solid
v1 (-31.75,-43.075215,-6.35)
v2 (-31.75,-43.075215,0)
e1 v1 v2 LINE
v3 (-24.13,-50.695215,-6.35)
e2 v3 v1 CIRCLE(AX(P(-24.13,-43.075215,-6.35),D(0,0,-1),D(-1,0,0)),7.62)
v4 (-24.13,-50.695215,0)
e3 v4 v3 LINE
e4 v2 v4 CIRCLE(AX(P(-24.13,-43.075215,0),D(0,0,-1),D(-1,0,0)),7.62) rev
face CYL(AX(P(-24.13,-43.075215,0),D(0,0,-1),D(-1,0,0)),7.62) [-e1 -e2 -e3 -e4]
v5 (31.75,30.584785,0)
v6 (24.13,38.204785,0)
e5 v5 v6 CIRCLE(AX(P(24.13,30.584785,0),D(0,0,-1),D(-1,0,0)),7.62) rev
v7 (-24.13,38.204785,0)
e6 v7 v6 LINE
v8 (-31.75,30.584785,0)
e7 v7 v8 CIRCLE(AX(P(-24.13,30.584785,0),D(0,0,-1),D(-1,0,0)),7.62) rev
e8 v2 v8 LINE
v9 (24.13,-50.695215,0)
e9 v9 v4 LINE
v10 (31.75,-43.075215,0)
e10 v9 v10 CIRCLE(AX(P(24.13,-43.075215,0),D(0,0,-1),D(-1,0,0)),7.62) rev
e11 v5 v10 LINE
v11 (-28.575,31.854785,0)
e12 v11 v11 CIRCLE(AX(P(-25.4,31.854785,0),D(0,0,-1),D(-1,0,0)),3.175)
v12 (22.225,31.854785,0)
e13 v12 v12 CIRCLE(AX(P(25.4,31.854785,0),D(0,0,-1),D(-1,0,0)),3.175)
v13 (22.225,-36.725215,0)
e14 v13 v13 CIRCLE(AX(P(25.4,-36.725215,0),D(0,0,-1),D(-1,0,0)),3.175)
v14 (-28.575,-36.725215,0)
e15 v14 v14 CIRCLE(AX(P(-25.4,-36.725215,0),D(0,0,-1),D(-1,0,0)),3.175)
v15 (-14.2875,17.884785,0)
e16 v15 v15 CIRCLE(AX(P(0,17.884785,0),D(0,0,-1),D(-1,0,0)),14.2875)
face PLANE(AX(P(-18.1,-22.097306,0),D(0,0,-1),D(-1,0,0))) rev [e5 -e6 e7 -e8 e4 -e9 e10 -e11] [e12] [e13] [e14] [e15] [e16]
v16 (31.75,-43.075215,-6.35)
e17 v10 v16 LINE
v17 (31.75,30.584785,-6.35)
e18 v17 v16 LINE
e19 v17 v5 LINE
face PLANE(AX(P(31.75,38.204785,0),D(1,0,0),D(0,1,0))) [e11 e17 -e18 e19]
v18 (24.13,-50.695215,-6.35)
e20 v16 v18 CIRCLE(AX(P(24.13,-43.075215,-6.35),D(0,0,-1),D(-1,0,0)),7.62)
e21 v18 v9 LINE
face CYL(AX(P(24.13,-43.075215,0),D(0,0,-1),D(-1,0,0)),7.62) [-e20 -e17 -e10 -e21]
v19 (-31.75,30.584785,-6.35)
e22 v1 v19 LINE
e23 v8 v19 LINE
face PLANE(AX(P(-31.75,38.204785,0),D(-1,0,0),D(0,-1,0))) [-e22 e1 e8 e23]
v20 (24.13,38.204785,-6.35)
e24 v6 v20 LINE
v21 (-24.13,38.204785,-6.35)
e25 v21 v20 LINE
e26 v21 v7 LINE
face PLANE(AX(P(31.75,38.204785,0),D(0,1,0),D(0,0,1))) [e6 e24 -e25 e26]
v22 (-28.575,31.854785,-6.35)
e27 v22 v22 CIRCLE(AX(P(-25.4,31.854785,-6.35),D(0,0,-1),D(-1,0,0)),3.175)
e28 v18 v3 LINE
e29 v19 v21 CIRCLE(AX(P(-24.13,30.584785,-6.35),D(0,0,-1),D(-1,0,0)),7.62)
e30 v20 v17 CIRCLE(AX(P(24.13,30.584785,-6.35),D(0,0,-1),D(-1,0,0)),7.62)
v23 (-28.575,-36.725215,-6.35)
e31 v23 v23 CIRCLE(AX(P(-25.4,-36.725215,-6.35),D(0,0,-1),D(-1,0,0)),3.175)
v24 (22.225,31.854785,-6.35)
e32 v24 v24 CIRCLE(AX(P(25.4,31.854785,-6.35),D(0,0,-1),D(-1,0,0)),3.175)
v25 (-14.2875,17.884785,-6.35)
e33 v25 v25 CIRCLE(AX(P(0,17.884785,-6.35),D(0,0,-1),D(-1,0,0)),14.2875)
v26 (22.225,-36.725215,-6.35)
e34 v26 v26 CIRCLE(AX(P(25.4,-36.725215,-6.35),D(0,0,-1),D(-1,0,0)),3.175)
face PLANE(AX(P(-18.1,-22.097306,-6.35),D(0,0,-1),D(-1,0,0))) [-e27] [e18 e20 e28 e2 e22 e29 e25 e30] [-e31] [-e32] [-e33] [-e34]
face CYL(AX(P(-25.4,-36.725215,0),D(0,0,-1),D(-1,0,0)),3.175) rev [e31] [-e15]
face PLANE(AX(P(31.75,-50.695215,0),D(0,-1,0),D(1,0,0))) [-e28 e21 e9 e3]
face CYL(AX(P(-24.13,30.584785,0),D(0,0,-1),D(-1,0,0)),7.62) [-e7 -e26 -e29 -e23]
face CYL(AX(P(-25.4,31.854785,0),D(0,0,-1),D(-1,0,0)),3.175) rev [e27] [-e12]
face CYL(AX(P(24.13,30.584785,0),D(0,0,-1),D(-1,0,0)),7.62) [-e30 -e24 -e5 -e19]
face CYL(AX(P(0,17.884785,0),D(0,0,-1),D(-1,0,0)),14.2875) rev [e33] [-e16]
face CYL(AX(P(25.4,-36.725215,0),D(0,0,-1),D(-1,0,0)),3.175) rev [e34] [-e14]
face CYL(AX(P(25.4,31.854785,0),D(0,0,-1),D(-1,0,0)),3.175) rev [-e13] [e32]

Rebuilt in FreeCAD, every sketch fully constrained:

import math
import FreeCAD as App
import Part
import Sketcher
Q = App.Units.Quantity


def edges_at(feature, points):
    """Names of the edges that pass closest to the given points."""
    edges = feature.Shape.Edges
    near = lambda p: min(range(len(edges)), key=lambda i: edges[i].distToShape(Part.Vertex(*p))[0])
    return sorted({f"Edge{near(p) + 1}" for p in points})


def add_polygon(sketch, points):
    """Adds a closed chain of lines whose ends are joined by coincident constraints."""
    first, n = sketch.GeometryCount, len(points)
    for a, b in zip(points, points[1:] + points[:1]):
        sketch.addGeometry(Part.LineSegment(App.Vector(*a, 0), App.Vector(*b, 0)), False)
    for i in range(n):
        sketch.addConstraint(Sketcher.Constraint("Coincident", first + i, 2, first + (i + 1) % n, 1))

doc = App.newDocument("Part")
body = doc.addObject("PartDesign::Body", "Body")

# Sketch on XY plane
sketch1 = body.newObject("Sketcher::SketchObject", "Sketch")
sketch1.AttachmentSupport = (doc.getObject("XY_Plane"), [""])
sketch1.MapMode = "FlatFace"
sketch1.addGeometry(Part.LineSegment(App.Vector(-14.9, 29.8, 0), App.Vector(-19.7, 23.3, 0)), False)
sketch1.addGeometry(Part.ArcOfCircle(Part.Circle(App.Vector(-18.1, 22.1, 0), App.Vector(0, 0, 1), 2), math.radians(143), math.radians(180)), False)
sketch1.addGeometry(Part.LineSegment(App.Vector(-20.1, 22.1, 0), App.Vector(-20.1, -22.1, 0)), False)
sketch1.addGeometry(Part.ArcOfCircle(Part.Circle(App.Vector(-18.1, -22.1, 0), App.Vector(0, 0, 1), 2), math.radians(-180), math.radians(-143)), False)
sketch1.addGeometry(Part.LineSegment(App.Vector(-19.7, -23.3, 0), App.Vector(-14.9, -29.8, 0)), False)
sketch1.addGeometry(Part.ArcOfCircle(Part.Circle(App.Vector(-13.3, -28.5, 0), App.Vector(0, 0, 1), 2), math.radians(-143), math.radians(-90)), False)
sketch1.addGeometry(Part.LineSegment(App.Vector(-13.3, -30.6, 0), App.Vector(13.3, -30.6, 0)), False)
sketch1.addGeometry(Part.ArcOfCircle(Part.Circle(App.Vector(13.3, -28.5, 0), App.Vector(0, 0, 1), 2), math.radians(-90), math.radians(-37)), False)
sketch1.addGeometry(Part.LineSegment(App.Vector(14.9, -29.8, 0), App.Vector(19.7, -23.3, 0)), False)
sketch1.addGeometry(Part.ArcOfCircle(Part.Circle(App.Vector(18.1, -22.1, 0), App.Vector(0, 0, 1), 2), math.radians(-37), math.radians(0)), False)
sketch1.addGeometry(Part.LineSegment(App.Vector(20.1, -22.1, 0), App.Vector(20.1, 22.1, 0)), False)
sketch1.addGeometry(Part.ArcOfCircle(Part.Circle(App.Vector(18.1, 22.1, 0), App.Vector(0, 0, 1), 2), math.radians(0), math.radians(37)), False)
sketch1.addGeometry(Part.LineSegment(App.Vector(19.7, 23.3, 0), App.Vector(14.9, 29.8, 0)), False)
sketch1.addGeometry(Part.ArcOfCircle(Part.Circle(App.Vector(13.3, 28.5, 0), App.Vector(0, 0, 1), 2), math.radians(37), math.radians(90)), False)
sketch1.addGeometry(Part.LineSegment(App.Vector(13.3, 30.6, 0), App.Vector(-13.3, 30.6, 0)), False)
sketch1.addGeometry(Part.ArcOfCircle(Part.Circle(App.Vector(-13.3, 28.5, 0), App.Vector(0, 0, 1), 2), math.radians(90), math.radians(143)), False)
sketch1.addConstraint(Sketcher.Constraint("Tangent", 0, 2, 1, 1))
sketch1.addConstraint(Sketcher.Constraint("Tangent", 1, 2, 2, 1))
sketch1.addConstraint(Sketcher.Constraint("Tangent", 2, 2, 3, 1))
sketch1.addConstraint(Sketcher.Constraint("Tangent", 3, 2, 4, 1))
sketch1.addConstraint(Sketcher.Constraint("Tangent", 4, 2, 5, 1))
sketch1.addConstraint(Sketcher.Constraint("Tangent", 5, 2, 6, 1))
sketch1.addConstraint(Sketcher.Constraint("Tangent", 6, 2, 7, 1))
sketch1.addConstraint(Sketcher.Constraint("Tangent", 7, 2, 8, 1))
sketch1.addConstraint(Sketcher.Constraint("Tangent", 8, 2, 9, 1))
sketch1.addConstraint(Sketcher.Constraint("Tangent", 9, 2, 10, 1))
sketch1.addConstraint(Sketcher.Constraint("Tangent", 10, 2, 11, 1))
sketch1.addConstraint(Sketcher.Constraint("Tangent", 11, 2, 12, 1))
sketch1.addConstraint(Sketcher.Constraint("Tangent", 12, 2, 13, 1))
sketch1.addConstraint(Sketcher.Constraint("Tangent", 13, 2, 14, 1))
sketch1.addConstraint(Sketcher.Constraint("Tangent", 14, 2, 15, 1))
sketch1.addConstraint(Sketcher.Constraint("Tangent", 15, 2, 0, 1))
sketch1.addConstraint(Sketcher.Constraint("Vertical", 2))
sketch1.addConstraint(Sketcher.Constraint("Horizontal", 6))
sketch1.addConstraint(Sketcher.Constraint("Vertical", 10))
sketch1.addConstraint(Sketcher.Constraint("Horizontal", 14))
sketch1.addConstraint(Sketcher.Constraint("Equal", 1, 3))
sketch1.addConstraint(Sketcher.Constraint("Equal", 3, 5))
sketch1.addConstraint(Sketcher.Constraint("Equal", 5, 7))
sketch1.addConstraint(Sketcher.Constraint("Equal", 7, 9))
sketch1.addConstraint(Sketcher.Constraint("Equal", 9, 11))
sketch1.addConstraint(Sketcher.Constraint("Equal", 11, 13))
sketch1.addConstraint(Sketcher.Constraint("Equal", 13, 15))
sketch1.addConstraint(Sketcher.Constraint("Symmetric", 1, 3, 9, 3, -1, 1))
sketch1.addConstraint(Sketcher.Constraint("Symmetric", 5, 3, 13, 3, -1, 1))
sketch1.addConstraint(Sketcher.Constraint("Symmetric", 4, 2, 7, 2, -2))
sketch1.addConstraint(Sketcher.Constraint("Symmetric", 0, 2, 11, 2, -2))
sketch1.addConstraint(Sketcher.Constraint("Radius", 1, 2.0))
sketch1.addConstraint(Sketcher.Constraint("DistanceX", 6, 1, 6, 2, 26.50231))
sketch1.addConstraint(Sketcher.Constraint("DistanceX", 1, 3, -1, 1, 18.1))
sketch1.addConstraint(Sketcher.Constraint("DistanceY", 5, 3, -1, 1, 28.55))
sketch1.addConstraint(Sketcher.Constraint("DistanceX", 4, 2, 7, 3, 28.1012))
pad1 = body.newObject("PartDesign::Pad", "Pad")
pad1.Profile = sketch1
pad1.Length = Q("0.25 in")
pad1.Reversed = True

# Sketch on XY plane
sketch2 = body.newObject("Sketcher::SketchObject", "Sketch001")
sketch2.AttachmentSupport = (doc.getObject("XY_Plane"), [""])
sketch2.MapMode = "FlatFace"
sketch2.AttachmentOffset = App.Placement(App.Vector(0, 0, -0.25 * 25.4), App.Rotation())
sketch2.addGeometry(Part.Circle(App.Vector(-17.3, 21.9, 0), App.Vector(0, 0, 1), 1.4), False)
sketch2.addGeometry(Part.Circle(App.Vector(-17.3, -0.1, 0), App.Vector(0, 0, 1), 1.4), False)
sketch2.addGeometry(Part.Circle(App.Vector(-17.3, -22.1, 0), App.Vector(0, 0, 1), 1.4), False)
sketch2.addGeometry(Part.Circle(App.Vector(-11, -27.8, 0), App.Vector(0, 0, 1), 1.4), False)
sketch2.addGeometry(Part.Circle(App.Vector(11, -27.8, 0), App.Vector(0, 0, 1), 1.4), False)
sketch2.addGeometry(Part.Circle(App.Vector(17.3, -22.1, 0), App.Vector(0, 0, 1), 1.4), False)
sketch2.addGeometry(Part.Circle(App.Vector(17.3, -0.1, 0), App.Vector(0, 0, 1), 1.4), False)
sketch2.addGeometry(Part.Circle(App.Vector(17.3, 21.9, 0), App.Vector(0, 0, 1), 1.4), False)
sketch2.addConstraint(Sketcher.Constraint("Equal", 0, 1))
sketch2.addConstraint(Sketcher.Constraint("Equal", 1, 2))
sketch2.addConstraint(Sketcher.Constraint("Equal", 3, 4))
sketch2.addConstraint(Sketcher.Constraint("Equal", 2, 5))
sketch2.addConstraint(Sketcher.Constraint("Equal", 5, 6))
sketch2.addConstraint(Sketcher.Constraint("Equal", 6, 7))
sketch2.addConstraint(Sketcher.Constraint("Symmetric", 3, 3, 4, 3, -2))
sketch2.addConstraint(Sketcher.Constraint("Symmetric", 2, 3, 5, 3, -2))
sketch2.addConstraint(Sketcher.Constraint("Symmetric", 1, 3, 6, 3, -2))
sketch2.addConstraint(Sketcher.Constraint("Symmetric", 0, 3, 7, 3, -2))
sketch2.addConstraint(Sketcher.Constraint("Vertical", 0, 3, 1, 3))
sketch2.addConstraint(Sketcher.Constraint("Vertical", 1, 3, 2, 3))
sketch2.addConstraint(Sketcher.Constraint("Diameter", 0, 2.7))
sketch2.addConstraint(Sketcher.Constraint("Diameter", 3, 2.77))
sketch2.addConstraint(Sketcher.Constraint("DistanceX", 0, 3, -1, 1, 17.3))
sketch2.addConstraint(Sketcher.Constraint("DistanceX", 3, 3, -1, 1, 11.0))
sketch2.addConstraint(Sketcher.Constraint("DistanceY", 3, 3, -1, 1, 27.75))
sketch2.addConstraint(Sketcher.Constraint("DistanceY", 1, 3, 0, 3, 22.0))
sketch2.addConstraint(Sketcher.Constraint("DistanceY", 2, 3, 1, 3, 22.0))
sketch2.addConstraint(Sketcher.Constraint("DistanceY", -1, 1, 0, 3, 21.948784))
pocket1 = body.newObject("PartDesign::Pocket", "Pocket")
pocket1.Profile = sketch2
pocket1.Type = "ThroughAll"
pocket1.Reversed = True

# Sketch on XY plane
sketch3 = body.newObject("Sketcher::SketchObject", "Sketch002")
sketch3.AttachmentSupport = (doc.getObject("XY_Plane"), [""])
sketch3.MapMode = "FlatFace"
sketch3.AttachmentOffset = App.Placement(App.Vector(0, 0, -0.25 * 25.4), App.Rotation())
add_polygon(sketch3, [(32, 38), (32, -51), (-32, -51), (-32, 38)])  # lines 0-3
add_polygon(sketch3, [(-19, -24), (19, -24), (19, 24), (-19, 24)])  # lines 4-7
sketch3.addConstraint(Sketcher.Constraint("Vertical", 0))
sketch3.addConstraint(Sketcher.Constraint("Horizontal", 1))
sketch3.addConstraint(Sketcher.Constraint("Vertical", 2))
sketch3.addConstraint(Sketcher.Constraint("Horizontal", 3))
sketch3.addConstraint(Sketcher.Constraint("Horizontal", 4))
sketch3.addConstraint(Sketcher.Constraint("Vertical", 5))
sketch3.addConstraint(Sketcher.Constraint("Horizontal", 6))
sketch3.addConstraint(Sketcher.Constraint("Vertical", 7))
sketch3.addConstraint(Sketcher.Constraint("Symmetric", 4, 2, 6, 2, -1, 1))
sketch3.addConstraint(Sketcher.Constraint("DistanceX", 1, 2, 1, 1, Q("2.5 in")))
sketch3.addConstraint(Sketcher.Constraint("DistanceY", 0, 2, 0, 1, Q("3.5 in")))
sketch3.addConstraint(Sketcher.Constraint("DistanceX", -1, 1, 0, 2, Q("1.25 in")))
sketch3.addConstraint(Sketcher.Constraint("DistanceY", 5, 1, 5, 2, 47.23754))
sketch3.addConstraint(Sketcher.Constraint("DistanceX", 4, 1, 4, 2, 38.321076))
sketch3.addConstraint(Sketcher.Constraint("DistanceY", 0, 2, -1, 1, 50.695216))
pad2 = body.newObject("PartDesign::Pad", "Pad001")
pad2.Profile = sketch3
pad2.Length = Q("0.25 in")

# Sketch on XY plane
sketch4 = body.newObject("Sketcher::SketchObject", "Sketch003")
sketch4.AttachmentSupport = (doc.getObject("XY_Plane"), [""])
sketch4.MapMode = "FlatFace"
add_polygon(sketch4, [(-14, 31), (-14, -25), (14, -25), (14, 31)])  # lines 0-3
sketch4.addConstraint(Sketcher.Constraint("Vertical", 0))
sketch4.addConstraint(Sketcher.Constraint("Horizontal", 1))
sketch4.addConstraint(Sketcher.Constraint("Vertical", 2))
sketch4.addConstraint(Sketcher.Constraint("Horizontal", 3))
sketch4.addConstraint(Sketcher.Constraint("DistanceX", 1, 1, 1, 2, Q("1.1 in")))
sketch4.addConstraint(Sketcher.Constraint("DistanceY", 0, 2, 0, 1, Q("2.2 in")))
sketch4.addConstraint(Sketcher.Constraint("DistanceX", 0, 2, -1, 1, Q("0.55 in")))
sketch4.addConstraint(Sketcher.Constraint("DistanceY", 0, 2, -1, 1, 24.931216))
pocket2 = body.newObject("PartDesign::Pocket", "Pocket001")
pocket2.Profile = sketch4
pocket2.Type = "ThroughAll"

# Sketch on XY plane
sketch5 = body.newObject("Sketcher::SketchObject", "Sketch004")
sketch5.AttachmentSupport = (doc.getObject("XY_Plane"), [""])
sketch5.MapMode = "FlatFace"
sketch5.AttachmentOffset = App.Placement(App.Vector(0, 0, -0.25 * 25.4), App.Rotation())
sketch5.addGeometry(Part.Circle(App.Vector(-25.4, 31.9, 0), App.Vector(0, 0, 1), 3.2), False)
sketch5.addGeometry(Part.Circle(App.Vector(25.4, 31.9, 0), App.Vector(0, 0, 1), 3.2), False)
sketch5.addGeometry(Part.Circle(App.Vector(25.4, -36.7, 0), App.Vector(0, 0, 1), 3.2), False)
sketch5.addGeometry(Part.Circle(App.Vector(-25.4, -36.7, 0), App.Vector(0, 0, 1), 3.2), False)
sketch5.addConstraint(Sketcher.Constraint("Equal", 0, 1))
sketch5.addConstraint(Sketcher.Constraint("Equal", 1, 2))
sketch5.addConstraint(Sketcher.Constraint("Equal", 2, 3))
sketch5.addConstraint(Sketcher.Constraint("Symmetric", 0, 3, 1, 3, -2))
sketch5.addConstraint(Sketcher.Constraint("Symmetric", 2, 3, 3, 3, -2))
sketch5.addConstraint(Sketcher.Constraint("Vertical", 1, 3, 2, 3))
sketch5.addConstraint(Sketcher.Constraint("Diameter", 0, Q("0.25 in")))
sketch5.addConstraint(Sketcher.Constraint("DistanceX", 0, 3, -1, 1, Q("1 in")))
sketch5.addConstraint(Sketcher.Constraint("DistanceY", 2, 3, 1, 3, Q("2.7 in")))
sketch5.addConstraint(Sketcher.Constraint("DistanceY", -1, 1, 0, 3, 31.854785))
pocket3 = body.newObject("PartDesign::Pocket", "Pocket002")
pocket3.Profile = sketch5
pocket3.Type = "ThroughAll"
pocket3.Reversed = True
doc.recompute()

fillet = body.newObject("PartDesign::Fillet", "Fillet")
fillet.Base = (pocket3, edges_at(pocket3, [
    (-31.75, 38.205, -3.175),
    (-31.75, -50.695, -3.175),
    (31.75, -50.695, -3.175),
    (31.75, 38.205, -3.175),
]))
fillet.Radius = Q("0.3 in")

# Sketch on XY plane
sketch6 = body.newObject("Sketcher::SketchObject", "Sketch005")
sketch6.AttachmentSupport = (doc.getObject("XY_Plane"), [""])
sketch6.MapMode = "FlatFace"
sketch6.AttachmentOffset = App.Placement(App.Vector(0, 0, -0.25 * 25.4), App.Rotation())
add_polygon(sketch6, [(21, 32), (21, -26), (-21, -26), (-21, 32)])  # lines 0-3
sketch6.addConstraint(Sketcher.Constraint("Vertical", 0))
sketch6.addConstraint(Sketcher.Constraint("Horizontal", 1))
sketch6.addConstraint(Sketcher.Constraint("Vertical", 2))
sketch6.addConstraint(Sketcher.Constraint("Horizontal", 3))
sketch6.addConstraint(Sketcher.Constraint("DistanceX", 1, 2, 1, 1, 41.724969))
sketch6.addConstraint(Sketcher.Constraint("DistanceY", 0, 2, 0, 1, 57.858351))
sketch6.addConstraint(Sketcher.Constraint("DistanceY", -1, 1, 2, 2, 32.096618))
sketch6.addConstraint(Sketcher.Constraint("DistanceX", -1, 1, 0, 2, 20.862484))
pad3 = body.newObject("PartDesign::Pad", "Pad002")
pad3.Profile = sketch6
pad3.Length = Q("0.25 in")

# Sketch on XY plane
sketch7 = body.newObject("Sketcher::SketchObject", "Sketch006")
sketch7.AttachmentSupport = (doc.getObject("XY_Plane"), [""])
sketch7.MapMode = "FlatFace"
sketch7.AttachmentOffset = App.Placement(App.Vector(0, 0, -0.25 * 25.4), App.Rotation())
sketch7.addGeometry(Part.Circle(App.Vector(0, 18, 0), App.Vector(0, 0, 1), 14), False)
sketch7.addConstraint(Sketcher.Constraint("PointOnObject", 0, 3, -2))
sketch7.addConstraint(Sketcher.Constraint("Diameter", 0, Q("1.125 in")))
sketch7.addConstraint(Sketcher.Constraint("DistanceY", -1, 1, 0, 3, 17.884784))
pocket4 = body.newObject("PartDesign::Pocket", "Pocket003")
pocket4.Profile = sketch7
pocket4.Length = Q("0.25 in")
pocket4.Reversed = True

doc.recompute()
